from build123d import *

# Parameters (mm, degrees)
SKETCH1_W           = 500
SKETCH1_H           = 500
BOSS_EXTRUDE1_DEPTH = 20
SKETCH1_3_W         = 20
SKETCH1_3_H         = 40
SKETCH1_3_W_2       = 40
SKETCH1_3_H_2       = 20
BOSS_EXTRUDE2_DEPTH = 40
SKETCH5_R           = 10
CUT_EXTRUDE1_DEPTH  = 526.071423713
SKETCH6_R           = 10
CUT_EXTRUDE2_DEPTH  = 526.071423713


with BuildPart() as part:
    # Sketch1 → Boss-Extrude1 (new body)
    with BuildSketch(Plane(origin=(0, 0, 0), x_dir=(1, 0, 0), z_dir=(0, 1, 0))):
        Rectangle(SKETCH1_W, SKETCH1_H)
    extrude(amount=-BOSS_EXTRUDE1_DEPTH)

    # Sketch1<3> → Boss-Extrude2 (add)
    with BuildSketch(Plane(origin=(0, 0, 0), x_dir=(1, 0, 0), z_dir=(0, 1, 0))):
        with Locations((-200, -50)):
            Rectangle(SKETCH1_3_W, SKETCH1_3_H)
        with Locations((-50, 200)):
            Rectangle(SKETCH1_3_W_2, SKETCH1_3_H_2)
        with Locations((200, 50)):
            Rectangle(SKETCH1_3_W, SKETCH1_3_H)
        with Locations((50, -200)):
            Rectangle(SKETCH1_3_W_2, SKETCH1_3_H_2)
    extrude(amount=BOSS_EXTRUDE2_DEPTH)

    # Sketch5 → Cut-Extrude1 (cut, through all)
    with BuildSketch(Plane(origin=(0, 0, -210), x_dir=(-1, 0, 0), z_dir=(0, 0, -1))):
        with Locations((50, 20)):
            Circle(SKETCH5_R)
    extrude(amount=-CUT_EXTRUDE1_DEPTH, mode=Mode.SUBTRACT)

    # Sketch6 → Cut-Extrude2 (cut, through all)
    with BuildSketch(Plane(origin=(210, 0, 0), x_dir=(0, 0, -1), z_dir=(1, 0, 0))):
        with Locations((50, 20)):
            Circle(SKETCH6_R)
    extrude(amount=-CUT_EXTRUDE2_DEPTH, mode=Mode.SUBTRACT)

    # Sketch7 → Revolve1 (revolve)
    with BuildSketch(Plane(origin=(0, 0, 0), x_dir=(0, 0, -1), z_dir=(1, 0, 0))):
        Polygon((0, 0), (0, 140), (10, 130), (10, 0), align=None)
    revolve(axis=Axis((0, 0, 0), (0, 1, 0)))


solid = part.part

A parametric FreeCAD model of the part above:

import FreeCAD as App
import Part
import Sketcher
Q = App.Units.Quantity


def add_polygon(sketch, points):
    """Adds a closed chain of lines whose ends are joined by coincident constraints."""
    first, n = sketch.GeometryCount, len(points)
    for a, b in zip(points, points[1:] + points[:1]):
        sketch.addGeometry(Part.LineSegment(App.Vector(*a, 0), App.Vector(*b, 0)), False)
    for i in range(n):
        sketch.addConstraint(Sketcher.Constraint("Coincident", first + i, 2, first + (i + 1) % n, 1))

doc = App.newDocument("Part")
body = doc.addObject("PartDesign::Body", "Body")

sketch1 = doc.addObject("Sketcher::SketchObject", "Sketch")
body.addObject(sketch1)
sketch1.AttachmentSupport = (doc.XZ_Plane, [""])
sketch1.MapMode = "FlatFace"
add_polygon(sketch1, [(-250, -250), (-250, 250), (250, 250), (250, -250)])
sketch1.addConstraint(Sketcher.Constraint("Vertical", 0))
sketch1.addConstraint(Sketcher.Constraint("Horizontal", 1))
sketch1.addConstraint(Sketcher.Constraint("Vertical", 2))
sketch1.addConstraint(Sketcher.Constraint("Horizontal", 3))
sketch1.addConstraint(Sketcher.Constraint("Symmetric", 0, 2, 2, 2, -1, 1))
sketch1.addConstraint(Sketcher.Constraint("Equal", 3, 0))
sketch1.addConstraint(Sketcher.Constraint("DistanceX", 1, 1, 1, 2, Q("500 mm")))
pad1 = doc.addObject("PartDesign::Pad", "Pad")
body.addObject(pad1)
pad1.Profile = sketch1
pad1.Length = 20

sketch2 = doc.addObject("Sketcher::SketchObject", "Sketch001")
body.addObject(sketch2)
sketch2.AttachmentSupport = (doc.XZ_Plane, [""])
sketch2.MapMode = "FlatFace"
add_polygon(sketch2, [(-210, 30), (-210, 70), (-190, 70), (-190, 30)])
add_polygon(sketch2, [(-70, -210), (-70, -190), (-30, -190), (-30, -210)])
add_polygon(sketch2, [(190, -70), (190, -30), (210, -30), (210, -70)])
add_polygon(sketch2, [(30, 190), (30, 210), (70, 210), (70, 190)])
sketch2.addConstraint(Sketcher.Constraint("Vertical", 0))
sketch2.addConstraint(Sketcher.Constraint("Horizontal", 1))
sketch2.addConstraint(Sketcher.Constraint("Vertical", 2))
sketch2.addConstraint(Sketcher.Constraint("Horizontal", 3))
sketch2.addConstraint(Sketcher.Constraint("Vertical", 4))
sketch2.addConstraint(Sketcher.Constraint("Horizontal", 5))
sketch2.addConstraint(Sketcher.Constraint("Vertical", 6))
sketch2.addConstraint(Sketcher.Constraint("Horizontal", 7))
sketch2.addConstraint(Sketcher.Constraint("Vertical", 8))
sketch2.addConstraint(Sketcher.Constraint("Horizontal", 9))
sketch2.addConstraint(Sketcher.Constraint("Vertical", 10))
sketch2.addConstraint(Sketcher.Constraint("Horizontal", 11))
sketch2.addConstraint(Sketcher.Constraint("Vertical", 12))
sketch2.addConstraint(Sketcher.Constraint("Horizontal", 13))
sketch2.addConstraint(Sketcher.Constraint("Vertical", 14))
sketch2.addConstraint(Sketcher.Constraint("Horizontal", 15))
sketch2.addConstraint(Sketcher.Constraint("Symmetric", 2, 2, 8, 2, -1, 1))
sketch2.addConstraint(Sketcher.Constraint("Symmetric", 0, 2, 10, 2, -1, 1))
sketch2.addConstraint(Sketcher.Constraint("Symmetric", 6, 2, 12, 2, -1, 1))
sketch2.addConstraint(Sketcher.Constraint("Symmetric", 4, 2, 14, 2, -1, 1))
sketch2.addConstraint(Sketcher.Constraint("Equal", 15, 0))
sketch2.addConstraint(Sketcher.Constraint("Equal", 11, 4))
sketch2.addConstraint(Sketcher.Constraint("DistanceX", 1, 1, 1, 2, Q("20 mm")))
sketch2.addConstraint(Sketcher.Constraint("DistanceX", 5, 1, 5, 2, Q("40 mm")))
sketch2.addConstraint(Sketcher.Constraint("DistanceX", 0, 2, -1, 1, Q("210 mm")))
sketch2.addConstraint(Sketcher.Constraint("DistanceY", -1, 1, 0, 2, Q("70 mm")))
sketch2.addConstraint(Sketcher.Constraint("DistanceX", 4, 2, -1, 1, Q("70 mm")))
sketch2.addConstraint(Sketcher.Constraint("DistanceY", 4, 2, -1, 1, Q("190 mm")))
pad2 = doc.addObject("PartDesign::Pad", "Pad001")
body.addObject(pad2)
pad2.Profile = sketch2
pad2.Length = 40
pad2.Reversed = True

sketch3 = doc.addObject("Sketcher::SketchObject", "Sketch002")
body.addObject(sketch3)
sketch3.AttachmentSupport = (doc.XY_Plane, [""])
sketch3.MapMode = "FlatFace"
sketch3.AttachmentOffset = App.Placement(App.Vector(0, 0, -210), App.Rotation())
sketch3.addGeometry(Part.Circle(App.Vector(-50, 20, 0), App.Vector(0, 0, 1), 10), False)
sketch3.addConstraint(Sketcher.Constraint("Diameter", 0, Q("20 mm")))
sketch3.addConstraint(Sketcher.Constraint("DistanceX", 0, 3, -1, 1, Q("50 mm")))
sketch3.addConstraint(Sketcher.Constraint("DistanceY", -1, 1, 0, 3, Q("20 mm")))
pocket1 = doc.addObject("PartDesign::Pocket", "Pocket")
body.addObject(pocket1)
pocket1.Profile = sketch3
pocket1.Type = "ThroughAll"
pocket1.Reversed = True

sketch4 = doc.addObject("Sketcher::SketchObject", "Sketch003")
body.addObject(sketch4)
sketch4.AttachmentSupport = (doc.YZ_Plane, [""])
sketch4.MapMode = "FlatFace"
sketch4.AttachmentOffset = App.Placement(App.Vector(0, 0, 210), App.Rotation())
sketch4.addGeometry(Part.Circle(App.Vector(20, -50, 0), App.Vector(0, 0, 1), 10), False)
sketch4.addConstraint(Sketcher.Constraint("Diameter", 0, Q("20 mm")))
sketch4.addConstraint(Sketcher.Constraint("DistanceX", -1, 1, 0, 3, Q("20 mm")))
sketch4.addConstraint(Sketcher.Constraint("DistanceY", 0, 3, -1, 1, Q("50 mm")))
pocket2 = doc.addObject("PartDesign::Pocket", "Pocket001")
body.addObject(pocket2)
pocket2.Profile = sketch4
pocket2.Type = "ThroughAll"

sketch5 = doc.addObject("Sketcher::SketchObject", "Sketch004")
body.addObject(sketch5)
sketch5.AttachmentSupport = (doc.YZ_Plane, [""])
sketch5.MapMode = "FlatFace"
add_polygon(sketch5, [(140, 0), (0, 0), (0, -10), (130, -10)])
sketch5.addConstraint(Sketcher.Constraint("Horizontal", 0))
sketch5.addConstraint(Sketcher.Constraint("Vertical", 1))
sketch5.addConstraint(Sketcher.Constraint("Horizontal", 2))
sketch5.addConstraint(Sketcher.Constraint("Coincident", 0, 2, -1, 1))
sketch5.addConstraint(Sketcher.Constraint("DistanceX", 0, 2, 0, 1, Q("140 mm")))
sketch5.addConstraint(Sketcher.Constraint("DistanceX", 2, 1, 2, 2, Q("130 mm")))
sketch5.addConstraint(Sketcher.Constraint("DistanceY", 1, 2, 1, 1, Q("10 mm")))
revolution = doc.addObject("PartDesign::Revolution", "Revolution")
body.addObject(revolution)
revolution.Profile = sketch5
revolution.ReferenceAxis = (sketch5, ["H_Axis"])
revolution.Angle = 360

doc.recompute()
